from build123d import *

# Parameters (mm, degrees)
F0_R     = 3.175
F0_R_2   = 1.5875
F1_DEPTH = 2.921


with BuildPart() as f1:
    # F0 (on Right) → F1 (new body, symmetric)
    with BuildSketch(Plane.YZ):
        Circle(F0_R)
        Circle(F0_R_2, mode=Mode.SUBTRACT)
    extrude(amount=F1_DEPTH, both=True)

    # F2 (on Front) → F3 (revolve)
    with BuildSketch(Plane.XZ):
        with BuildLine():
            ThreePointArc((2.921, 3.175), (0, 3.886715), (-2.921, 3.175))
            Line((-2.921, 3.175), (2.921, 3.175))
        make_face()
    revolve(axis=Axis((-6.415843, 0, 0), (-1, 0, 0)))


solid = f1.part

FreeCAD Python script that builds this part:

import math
import FreeCAD as App
import Part
import Sketcher
from FreeCAD import Vector
Q = App.Units.Quantity

doc = App.newDocument("Part")
body = doc.addObject("PartDesign::Body", "Body")

sketch1 = doc.addObject("Sketcher::SketchObject", "Sketch")
body.addObject(sketch1)
sketch1.AttachmentSupport = (doc.YZ_Plane, [""])
sketch1.MapMode = "FlatFace"
sketch1.addGeometry(Part.Circle(Vector(0, 0, 0), Vector(0, 0, 1), 3.175), False)
sketch1.addGeometry(Part.Circle(Vector(0, 0, 0), Vector(0, 0, 1), 1.5875), False)
sketch1.addConstraint(Sketcher.Constraint("Coincident", 0, 3, -1, 1))
sketch1.addConstraint(Sketcher.Constraint("Coincident", 1, 3, -1, 1))
sketch1.addConstraint(Sketcher.Constraint("Diameter", 0, Q("0.25 in")))
sketch1.addConstraint(Sketcher.Constraint("Diameter", 1, Q("0.125 in")))
pad1 = doc.addObject("PartDesign::Pad", "Pad")
body.addObject(pad1)
pad1.Profile = sketch1
pad1.Length = Q("0.23 in")
pad1.Midplane = True

sketch2 = doc.addObject("Sketcher::SketchObject", "Sketch001")
body.addObject(sketch2)
sketch2.AttachmentSupport = (doc.XZ_Plane, [""])
sketch2.MapMode = "FlatFace"
sketch2.addGeometry(Part.ArcOfCircle(Part.Circle(Vector(0, -2.463284, 0), Vector(0, 0, 1), 6.349999), math.radians(62.612888), math.radians(117.387112)), False)
sketch2.addGeometry(Part.LineSegment(Vector(-2.921, 3.175, 0), Vector(2.921, 3.175, 0)), False)
sketch2.addConstraint(Sketcher.Constraint("Coincident", 0, 1, 1, 2))
sketch2.addConstraint(Sketcher.Constraint("Coincident", 1, 1, 0, 2))
sketch2.addConstraint(Sketcher.Constraint("Horizontal", 1))
sketch2.addConstraint(Sketcher.Constraint("PointOnObject", 0, 3, -2))
sketch2.addConstraint(Sketcher.Constraint("Radius", 0, Q("0.25 in")))
sketch2.addConstraint(Sketcher.Constraint("DistanceX", 1, 1, 1, 2, Q("0.23 in")))
sketch2.addConstraint(Sketcher.Constraint("DistanceY", -1, 1, 0, 1, Q("0.125 in")))
revolution = doc.addObject("PartDesign::Revolution", "Revolution")
body.addObject(revolution)
revolution.Profile = sketch2
revolution.ReferenceAxis = (sketch2, ["H_Axis"])
revolution.Angle = 360

doc.recompute()
